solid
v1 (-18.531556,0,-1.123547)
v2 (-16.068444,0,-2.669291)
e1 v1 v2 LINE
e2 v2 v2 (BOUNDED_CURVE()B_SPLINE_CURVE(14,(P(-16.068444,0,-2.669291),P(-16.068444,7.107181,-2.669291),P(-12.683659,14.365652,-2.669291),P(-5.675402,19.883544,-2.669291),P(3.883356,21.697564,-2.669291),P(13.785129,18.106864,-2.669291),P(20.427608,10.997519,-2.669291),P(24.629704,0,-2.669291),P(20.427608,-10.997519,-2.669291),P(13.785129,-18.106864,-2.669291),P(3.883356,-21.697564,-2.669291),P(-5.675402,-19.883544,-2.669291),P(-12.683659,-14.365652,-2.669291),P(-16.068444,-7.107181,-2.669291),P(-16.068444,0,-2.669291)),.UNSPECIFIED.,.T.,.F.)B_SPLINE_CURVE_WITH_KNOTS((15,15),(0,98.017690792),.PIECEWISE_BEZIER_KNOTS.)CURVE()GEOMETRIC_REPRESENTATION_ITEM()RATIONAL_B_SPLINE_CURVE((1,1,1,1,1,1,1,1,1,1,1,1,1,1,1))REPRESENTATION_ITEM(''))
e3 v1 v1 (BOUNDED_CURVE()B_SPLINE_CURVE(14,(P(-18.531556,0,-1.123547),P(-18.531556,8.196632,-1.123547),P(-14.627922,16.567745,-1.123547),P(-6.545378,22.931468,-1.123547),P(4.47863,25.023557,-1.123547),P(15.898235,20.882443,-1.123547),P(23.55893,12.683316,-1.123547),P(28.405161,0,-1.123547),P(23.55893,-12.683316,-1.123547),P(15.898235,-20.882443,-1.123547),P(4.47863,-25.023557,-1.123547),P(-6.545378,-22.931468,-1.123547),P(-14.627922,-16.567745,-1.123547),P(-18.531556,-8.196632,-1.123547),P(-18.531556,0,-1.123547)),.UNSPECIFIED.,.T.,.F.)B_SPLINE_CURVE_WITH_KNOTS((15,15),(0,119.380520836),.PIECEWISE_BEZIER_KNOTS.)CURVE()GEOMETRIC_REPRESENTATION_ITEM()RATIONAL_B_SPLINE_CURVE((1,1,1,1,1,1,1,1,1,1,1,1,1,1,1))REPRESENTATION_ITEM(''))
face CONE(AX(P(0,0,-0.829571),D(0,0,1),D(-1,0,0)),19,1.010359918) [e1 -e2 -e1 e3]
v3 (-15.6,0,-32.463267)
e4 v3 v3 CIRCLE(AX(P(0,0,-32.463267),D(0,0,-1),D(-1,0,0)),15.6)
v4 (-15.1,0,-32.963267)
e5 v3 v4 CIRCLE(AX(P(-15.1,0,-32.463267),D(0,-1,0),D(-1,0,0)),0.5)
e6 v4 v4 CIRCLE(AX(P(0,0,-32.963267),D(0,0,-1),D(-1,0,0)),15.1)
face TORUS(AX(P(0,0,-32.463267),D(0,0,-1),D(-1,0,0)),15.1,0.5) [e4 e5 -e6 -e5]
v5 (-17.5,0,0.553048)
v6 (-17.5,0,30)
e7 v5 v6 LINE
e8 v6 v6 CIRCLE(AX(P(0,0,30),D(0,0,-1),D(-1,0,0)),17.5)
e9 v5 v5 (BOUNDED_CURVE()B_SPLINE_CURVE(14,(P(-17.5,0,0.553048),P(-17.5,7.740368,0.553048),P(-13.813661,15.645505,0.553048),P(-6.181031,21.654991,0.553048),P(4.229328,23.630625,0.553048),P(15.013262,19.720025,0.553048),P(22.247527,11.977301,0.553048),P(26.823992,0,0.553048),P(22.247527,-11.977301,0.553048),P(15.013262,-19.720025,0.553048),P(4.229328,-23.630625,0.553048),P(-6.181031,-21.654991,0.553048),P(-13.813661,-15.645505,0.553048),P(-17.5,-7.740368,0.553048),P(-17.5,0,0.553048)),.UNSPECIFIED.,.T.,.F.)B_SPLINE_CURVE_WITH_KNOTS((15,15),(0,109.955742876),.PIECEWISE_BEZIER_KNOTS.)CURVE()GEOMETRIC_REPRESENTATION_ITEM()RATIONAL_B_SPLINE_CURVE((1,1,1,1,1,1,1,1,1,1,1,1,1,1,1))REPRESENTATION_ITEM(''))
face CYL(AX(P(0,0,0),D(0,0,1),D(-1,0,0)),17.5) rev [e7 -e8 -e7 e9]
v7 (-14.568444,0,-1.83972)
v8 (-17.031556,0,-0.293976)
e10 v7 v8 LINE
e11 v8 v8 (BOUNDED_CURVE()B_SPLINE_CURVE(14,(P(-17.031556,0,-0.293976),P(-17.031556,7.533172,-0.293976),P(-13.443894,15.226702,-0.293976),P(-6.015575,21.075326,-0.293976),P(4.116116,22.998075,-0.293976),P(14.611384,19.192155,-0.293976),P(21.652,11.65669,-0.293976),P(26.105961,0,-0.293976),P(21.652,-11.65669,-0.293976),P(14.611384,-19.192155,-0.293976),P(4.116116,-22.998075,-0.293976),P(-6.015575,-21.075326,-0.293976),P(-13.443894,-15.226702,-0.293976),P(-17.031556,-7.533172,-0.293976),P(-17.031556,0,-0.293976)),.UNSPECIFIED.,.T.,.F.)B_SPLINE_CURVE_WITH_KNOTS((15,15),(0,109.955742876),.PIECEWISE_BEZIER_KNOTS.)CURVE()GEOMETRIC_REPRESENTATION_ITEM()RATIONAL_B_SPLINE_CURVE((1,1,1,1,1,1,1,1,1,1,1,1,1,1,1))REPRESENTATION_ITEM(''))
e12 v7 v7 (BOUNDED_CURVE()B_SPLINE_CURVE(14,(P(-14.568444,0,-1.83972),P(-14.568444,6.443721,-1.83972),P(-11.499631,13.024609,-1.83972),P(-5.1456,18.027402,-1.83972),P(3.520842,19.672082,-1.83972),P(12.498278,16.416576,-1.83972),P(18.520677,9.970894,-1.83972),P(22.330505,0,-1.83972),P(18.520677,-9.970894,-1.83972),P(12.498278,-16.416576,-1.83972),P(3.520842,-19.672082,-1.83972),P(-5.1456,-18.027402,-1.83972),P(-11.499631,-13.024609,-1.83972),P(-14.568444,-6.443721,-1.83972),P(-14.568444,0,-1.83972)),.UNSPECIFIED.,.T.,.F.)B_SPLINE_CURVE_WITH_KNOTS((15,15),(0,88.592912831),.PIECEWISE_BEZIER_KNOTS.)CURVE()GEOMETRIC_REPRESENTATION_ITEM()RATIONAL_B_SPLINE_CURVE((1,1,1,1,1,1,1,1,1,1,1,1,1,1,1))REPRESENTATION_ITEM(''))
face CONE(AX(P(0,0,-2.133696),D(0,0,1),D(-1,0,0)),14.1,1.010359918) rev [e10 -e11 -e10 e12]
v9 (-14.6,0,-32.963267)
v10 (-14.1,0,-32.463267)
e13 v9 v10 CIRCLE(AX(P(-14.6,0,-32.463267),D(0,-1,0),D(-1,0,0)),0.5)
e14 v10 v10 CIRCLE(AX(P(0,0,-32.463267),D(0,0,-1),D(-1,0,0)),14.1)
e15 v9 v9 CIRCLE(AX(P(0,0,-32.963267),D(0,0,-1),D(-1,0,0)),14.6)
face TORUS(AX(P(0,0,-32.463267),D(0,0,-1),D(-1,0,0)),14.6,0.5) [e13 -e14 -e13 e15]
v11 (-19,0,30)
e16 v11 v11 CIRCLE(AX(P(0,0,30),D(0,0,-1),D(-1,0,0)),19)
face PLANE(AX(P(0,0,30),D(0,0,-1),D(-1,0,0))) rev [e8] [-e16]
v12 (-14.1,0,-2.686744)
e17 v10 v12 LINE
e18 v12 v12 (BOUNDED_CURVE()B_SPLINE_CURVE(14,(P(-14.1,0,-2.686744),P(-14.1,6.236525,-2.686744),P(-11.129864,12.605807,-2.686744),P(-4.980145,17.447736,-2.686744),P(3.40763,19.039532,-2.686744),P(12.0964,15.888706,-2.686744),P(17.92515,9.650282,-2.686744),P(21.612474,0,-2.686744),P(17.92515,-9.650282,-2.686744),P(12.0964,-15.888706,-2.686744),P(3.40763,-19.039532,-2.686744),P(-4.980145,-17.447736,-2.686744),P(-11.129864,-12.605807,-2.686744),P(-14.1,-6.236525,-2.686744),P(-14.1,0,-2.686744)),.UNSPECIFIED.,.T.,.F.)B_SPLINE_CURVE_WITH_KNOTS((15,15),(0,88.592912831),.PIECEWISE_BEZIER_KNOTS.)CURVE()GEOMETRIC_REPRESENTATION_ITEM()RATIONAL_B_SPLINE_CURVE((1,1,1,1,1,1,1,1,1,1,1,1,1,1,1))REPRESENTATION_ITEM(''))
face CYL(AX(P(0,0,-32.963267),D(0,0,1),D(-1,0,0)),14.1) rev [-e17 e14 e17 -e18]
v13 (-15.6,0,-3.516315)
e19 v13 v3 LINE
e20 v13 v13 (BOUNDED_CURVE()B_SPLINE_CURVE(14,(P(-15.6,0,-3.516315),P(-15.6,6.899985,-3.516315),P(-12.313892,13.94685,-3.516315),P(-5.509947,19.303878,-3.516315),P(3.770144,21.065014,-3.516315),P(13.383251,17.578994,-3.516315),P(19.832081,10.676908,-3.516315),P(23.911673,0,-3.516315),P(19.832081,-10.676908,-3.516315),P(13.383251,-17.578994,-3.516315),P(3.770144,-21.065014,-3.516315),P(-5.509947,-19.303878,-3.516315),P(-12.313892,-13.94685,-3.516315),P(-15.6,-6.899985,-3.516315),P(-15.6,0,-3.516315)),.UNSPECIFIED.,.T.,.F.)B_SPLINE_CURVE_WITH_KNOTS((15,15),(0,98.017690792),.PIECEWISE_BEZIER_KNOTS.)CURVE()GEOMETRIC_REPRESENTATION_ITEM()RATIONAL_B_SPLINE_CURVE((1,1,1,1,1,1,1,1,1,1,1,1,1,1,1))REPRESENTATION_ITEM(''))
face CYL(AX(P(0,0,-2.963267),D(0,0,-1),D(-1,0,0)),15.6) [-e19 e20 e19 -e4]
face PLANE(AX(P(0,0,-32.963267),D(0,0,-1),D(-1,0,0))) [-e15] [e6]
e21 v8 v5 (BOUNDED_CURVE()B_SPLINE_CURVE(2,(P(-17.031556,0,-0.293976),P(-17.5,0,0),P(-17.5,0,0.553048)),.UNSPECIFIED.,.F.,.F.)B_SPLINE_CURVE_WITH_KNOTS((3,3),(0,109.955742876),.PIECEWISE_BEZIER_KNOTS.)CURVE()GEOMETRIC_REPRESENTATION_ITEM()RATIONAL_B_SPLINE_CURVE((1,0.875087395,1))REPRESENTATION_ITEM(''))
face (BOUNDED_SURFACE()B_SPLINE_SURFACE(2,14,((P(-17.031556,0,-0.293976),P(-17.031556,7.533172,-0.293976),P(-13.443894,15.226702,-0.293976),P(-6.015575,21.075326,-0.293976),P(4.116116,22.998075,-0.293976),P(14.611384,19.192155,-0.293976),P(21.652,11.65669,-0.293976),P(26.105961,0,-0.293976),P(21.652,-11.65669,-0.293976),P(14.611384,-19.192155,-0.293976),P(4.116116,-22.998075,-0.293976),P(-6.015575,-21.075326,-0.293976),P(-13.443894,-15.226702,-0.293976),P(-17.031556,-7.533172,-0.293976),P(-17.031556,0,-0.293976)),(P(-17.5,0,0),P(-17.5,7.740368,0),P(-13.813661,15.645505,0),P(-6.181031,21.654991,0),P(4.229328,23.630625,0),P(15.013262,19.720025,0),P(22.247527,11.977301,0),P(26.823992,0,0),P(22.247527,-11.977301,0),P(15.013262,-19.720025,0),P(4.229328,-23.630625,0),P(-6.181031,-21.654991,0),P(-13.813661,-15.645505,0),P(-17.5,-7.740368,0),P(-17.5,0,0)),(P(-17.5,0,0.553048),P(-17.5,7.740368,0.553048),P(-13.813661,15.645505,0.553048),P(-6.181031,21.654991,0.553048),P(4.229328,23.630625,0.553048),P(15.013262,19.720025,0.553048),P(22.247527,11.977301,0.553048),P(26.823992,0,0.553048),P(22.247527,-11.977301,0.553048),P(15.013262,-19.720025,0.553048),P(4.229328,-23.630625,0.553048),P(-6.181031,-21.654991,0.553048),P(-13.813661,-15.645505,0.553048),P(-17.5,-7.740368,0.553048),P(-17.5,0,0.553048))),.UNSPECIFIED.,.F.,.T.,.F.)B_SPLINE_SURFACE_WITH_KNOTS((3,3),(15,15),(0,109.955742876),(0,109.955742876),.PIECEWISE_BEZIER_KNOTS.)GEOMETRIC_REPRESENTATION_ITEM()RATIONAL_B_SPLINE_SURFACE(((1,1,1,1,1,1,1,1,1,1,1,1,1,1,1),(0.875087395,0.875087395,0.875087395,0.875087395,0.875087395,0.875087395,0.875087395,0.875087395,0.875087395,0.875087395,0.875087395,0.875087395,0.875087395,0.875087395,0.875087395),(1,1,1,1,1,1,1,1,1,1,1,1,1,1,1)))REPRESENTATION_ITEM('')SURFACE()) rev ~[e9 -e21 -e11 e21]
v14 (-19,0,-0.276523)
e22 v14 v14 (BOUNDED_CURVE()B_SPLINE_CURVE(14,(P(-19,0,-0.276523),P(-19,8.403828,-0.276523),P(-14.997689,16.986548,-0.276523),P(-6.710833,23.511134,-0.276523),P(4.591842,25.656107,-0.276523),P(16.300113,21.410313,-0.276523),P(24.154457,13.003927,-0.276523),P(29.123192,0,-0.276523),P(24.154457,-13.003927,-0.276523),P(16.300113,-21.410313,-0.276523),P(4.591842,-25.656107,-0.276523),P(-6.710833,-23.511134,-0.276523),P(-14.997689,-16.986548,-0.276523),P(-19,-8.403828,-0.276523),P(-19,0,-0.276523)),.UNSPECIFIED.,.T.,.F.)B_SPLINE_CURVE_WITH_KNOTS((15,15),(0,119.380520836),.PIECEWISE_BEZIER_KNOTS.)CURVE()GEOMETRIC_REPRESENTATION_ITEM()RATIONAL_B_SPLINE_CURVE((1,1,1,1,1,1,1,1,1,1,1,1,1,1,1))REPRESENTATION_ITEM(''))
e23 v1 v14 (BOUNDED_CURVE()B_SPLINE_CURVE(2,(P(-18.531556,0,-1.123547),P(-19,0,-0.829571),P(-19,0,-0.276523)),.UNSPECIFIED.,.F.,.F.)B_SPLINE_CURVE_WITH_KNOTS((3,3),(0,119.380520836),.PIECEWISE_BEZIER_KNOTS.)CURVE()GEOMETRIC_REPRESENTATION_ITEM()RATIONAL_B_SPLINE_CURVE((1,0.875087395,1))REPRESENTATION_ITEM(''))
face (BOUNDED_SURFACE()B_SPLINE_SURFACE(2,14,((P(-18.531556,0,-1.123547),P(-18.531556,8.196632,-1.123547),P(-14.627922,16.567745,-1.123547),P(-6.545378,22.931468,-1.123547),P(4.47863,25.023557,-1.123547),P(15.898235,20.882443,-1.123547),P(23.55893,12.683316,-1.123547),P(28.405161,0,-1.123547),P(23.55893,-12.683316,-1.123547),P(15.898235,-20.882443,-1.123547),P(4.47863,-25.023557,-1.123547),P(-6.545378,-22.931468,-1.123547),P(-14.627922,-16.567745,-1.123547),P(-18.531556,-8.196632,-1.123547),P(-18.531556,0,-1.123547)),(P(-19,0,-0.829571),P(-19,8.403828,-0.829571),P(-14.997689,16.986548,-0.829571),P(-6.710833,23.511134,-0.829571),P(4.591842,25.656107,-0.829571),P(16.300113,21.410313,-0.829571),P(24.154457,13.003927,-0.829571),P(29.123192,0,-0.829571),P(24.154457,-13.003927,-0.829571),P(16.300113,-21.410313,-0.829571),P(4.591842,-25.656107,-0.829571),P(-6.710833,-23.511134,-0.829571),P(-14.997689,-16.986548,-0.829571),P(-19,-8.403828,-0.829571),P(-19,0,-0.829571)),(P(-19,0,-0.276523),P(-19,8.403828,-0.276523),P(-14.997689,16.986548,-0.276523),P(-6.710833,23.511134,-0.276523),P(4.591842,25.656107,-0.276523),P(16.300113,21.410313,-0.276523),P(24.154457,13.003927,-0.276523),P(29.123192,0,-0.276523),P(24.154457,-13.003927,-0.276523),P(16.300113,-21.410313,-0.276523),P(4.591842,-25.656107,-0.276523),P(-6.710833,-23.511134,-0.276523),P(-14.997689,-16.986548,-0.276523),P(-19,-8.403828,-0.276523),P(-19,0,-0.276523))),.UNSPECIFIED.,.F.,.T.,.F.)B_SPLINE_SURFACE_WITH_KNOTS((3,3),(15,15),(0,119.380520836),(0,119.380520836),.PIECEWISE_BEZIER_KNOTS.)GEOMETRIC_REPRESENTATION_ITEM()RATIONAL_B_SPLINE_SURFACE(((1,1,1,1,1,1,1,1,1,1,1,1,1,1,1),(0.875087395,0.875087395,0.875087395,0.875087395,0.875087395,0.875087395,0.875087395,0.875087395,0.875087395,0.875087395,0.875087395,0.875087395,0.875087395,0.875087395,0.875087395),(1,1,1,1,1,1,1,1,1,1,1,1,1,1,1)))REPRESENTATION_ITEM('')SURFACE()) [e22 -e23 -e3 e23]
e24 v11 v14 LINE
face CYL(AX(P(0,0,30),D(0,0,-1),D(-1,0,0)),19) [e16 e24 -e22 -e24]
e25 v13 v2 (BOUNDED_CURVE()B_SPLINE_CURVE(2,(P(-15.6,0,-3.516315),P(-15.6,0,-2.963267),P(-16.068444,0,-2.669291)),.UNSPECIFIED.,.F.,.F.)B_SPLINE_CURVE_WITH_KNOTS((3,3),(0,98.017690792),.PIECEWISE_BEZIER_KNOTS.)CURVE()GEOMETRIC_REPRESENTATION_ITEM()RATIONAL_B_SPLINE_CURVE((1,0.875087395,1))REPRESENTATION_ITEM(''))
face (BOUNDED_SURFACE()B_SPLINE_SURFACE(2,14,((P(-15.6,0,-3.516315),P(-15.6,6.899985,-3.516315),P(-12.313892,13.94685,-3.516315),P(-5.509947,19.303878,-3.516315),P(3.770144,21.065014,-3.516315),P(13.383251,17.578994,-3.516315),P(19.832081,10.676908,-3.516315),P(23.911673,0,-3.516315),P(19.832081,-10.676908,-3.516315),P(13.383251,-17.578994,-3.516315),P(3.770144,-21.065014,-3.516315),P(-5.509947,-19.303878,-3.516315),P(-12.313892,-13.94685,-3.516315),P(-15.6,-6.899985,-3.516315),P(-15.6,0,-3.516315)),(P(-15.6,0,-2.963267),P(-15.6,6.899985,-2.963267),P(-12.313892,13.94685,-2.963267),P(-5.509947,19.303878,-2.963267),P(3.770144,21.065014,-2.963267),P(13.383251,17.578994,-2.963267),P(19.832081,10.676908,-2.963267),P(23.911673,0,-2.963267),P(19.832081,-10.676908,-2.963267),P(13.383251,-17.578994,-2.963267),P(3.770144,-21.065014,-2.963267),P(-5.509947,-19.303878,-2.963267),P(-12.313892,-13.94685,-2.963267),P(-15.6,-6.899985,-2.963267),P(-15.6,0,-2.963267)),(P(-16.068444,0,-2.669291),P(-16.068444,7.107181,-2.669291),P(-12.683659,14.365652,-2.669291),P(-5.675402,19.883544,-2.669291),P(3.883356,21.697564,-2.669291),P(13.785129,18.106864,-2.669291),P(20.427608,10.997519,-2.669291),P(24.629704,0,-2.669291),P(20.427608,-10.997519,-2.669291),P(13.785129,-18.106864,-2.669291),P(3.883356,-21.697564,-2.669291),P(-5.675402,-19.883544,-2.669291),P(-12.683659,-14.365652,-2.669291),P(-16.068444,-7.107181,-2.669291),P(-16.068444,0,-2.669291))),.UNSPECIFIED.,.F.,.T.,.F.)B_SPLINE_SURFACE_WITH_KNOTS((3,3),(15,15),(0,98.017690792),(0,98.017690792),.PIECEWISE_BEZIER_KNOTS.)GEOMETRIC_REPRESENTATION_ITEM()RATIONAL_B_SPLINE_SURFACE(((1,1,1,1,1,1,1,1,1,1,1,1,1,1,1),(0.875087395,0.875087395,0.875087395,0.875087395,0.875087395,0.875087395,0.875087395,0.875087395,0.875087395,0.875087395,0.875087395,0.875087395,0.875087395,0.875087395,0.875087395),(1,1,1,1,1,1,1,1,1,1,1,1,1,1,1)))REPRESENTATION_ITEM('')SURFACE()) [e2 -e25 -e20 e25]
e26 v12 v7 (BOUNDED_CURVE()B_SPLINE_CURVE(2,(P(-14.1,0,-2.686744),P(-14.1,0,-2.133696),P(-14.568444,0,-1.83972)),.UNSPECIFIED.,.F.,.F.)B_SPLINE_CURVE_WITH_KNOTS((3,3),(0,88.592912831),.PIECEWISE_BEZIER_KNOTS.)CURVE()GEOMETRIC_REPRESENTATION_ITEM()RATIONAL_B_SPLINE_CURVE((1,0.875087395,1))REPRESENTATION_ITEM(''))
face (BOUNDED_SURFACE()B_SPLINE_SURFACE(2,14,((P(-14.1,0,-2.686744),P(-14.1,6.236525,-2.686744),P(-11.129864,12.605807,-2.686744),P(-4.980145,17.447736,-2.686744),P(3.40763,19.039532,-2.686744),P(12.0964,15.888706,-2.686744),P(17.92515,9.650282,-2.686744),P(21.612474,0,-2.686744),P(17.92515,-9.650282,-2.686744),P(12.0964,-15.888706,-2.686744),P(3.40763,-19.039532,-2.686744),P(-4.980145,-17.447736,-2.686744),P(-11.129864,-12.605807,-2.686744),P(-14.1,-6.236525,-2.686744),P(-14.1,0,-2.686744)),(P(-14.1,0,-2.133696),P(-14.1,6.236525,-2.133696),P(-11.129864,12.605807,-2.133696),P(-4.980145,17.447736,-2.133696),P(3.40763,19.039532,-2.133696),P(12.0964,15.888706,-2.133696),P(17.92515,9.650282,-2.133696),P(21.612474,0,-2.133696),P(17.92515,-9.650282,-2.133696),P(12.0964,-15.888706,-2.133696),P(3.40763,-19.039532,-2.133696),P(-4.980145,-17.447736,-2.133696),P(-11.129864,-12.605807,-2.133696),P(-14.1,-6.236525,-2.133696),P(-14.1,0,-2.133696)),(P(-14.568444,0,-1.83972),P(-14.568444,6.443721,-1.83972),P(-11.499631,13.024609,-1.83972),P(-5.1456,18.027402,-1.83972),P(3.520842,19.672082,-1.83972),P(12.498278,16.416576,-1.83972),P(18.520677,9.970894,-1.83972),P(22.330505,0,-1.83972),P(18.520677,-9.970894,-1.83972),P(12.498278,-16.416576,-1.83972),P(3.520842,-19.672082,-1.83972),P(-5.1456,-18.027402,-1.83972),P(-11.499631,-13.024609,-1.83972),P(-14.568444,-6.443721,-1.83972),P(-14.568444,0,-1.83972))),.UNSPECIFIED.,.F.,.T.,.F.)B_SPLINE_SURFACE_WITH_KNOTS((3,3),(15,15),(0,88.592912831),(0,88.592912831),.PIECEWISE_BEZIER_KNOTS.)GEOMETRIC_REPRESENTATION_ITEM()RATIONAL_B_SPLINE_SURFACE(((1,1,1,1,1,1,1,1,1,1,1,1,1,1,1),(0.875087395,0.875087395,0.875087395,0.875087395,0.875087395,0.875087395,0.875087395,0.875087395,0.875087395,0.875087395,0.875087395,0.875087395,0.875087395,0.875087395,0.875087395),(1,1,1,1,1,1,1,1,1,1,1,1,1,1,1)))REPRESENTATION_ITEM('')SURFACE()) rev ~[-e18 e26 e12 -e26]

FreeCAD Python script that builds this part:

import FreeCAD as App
import Part
import Sketcher
Q = App.Units.Quantity


def edges_at(feature, points):
    """Names of the edges that pass closest to the given points."""
    edges = feature.Shape.Edges
    near = lambda p: min(range(len(edges)), key=lambda i: edges[i].distToShape(Part.Vertex(*p))[0])
    return sorted({f"Edge{near(p) + 1}" for p in points})

doc = App.newDocument("Part")
body = doc.addObject("PartDesign::Body", "Body")

# Sketch on XZ plane
sketch1 = body.newObject("Sketcher::SketchObject", "Sketch")
sketch1.AttachmentSupport = (doc.getObject("XZ_Plane"), [""])
sketch1.MapMode = "FlatFace"
sketch1.addGeometry([
    Part.LineSegment(App.Vector(-17.5, 0, 0), App.Vector(-17.5, 30, 0)),  # 0
    Part.LineSegment(App.Vector(-17.5, 30, 0), App.Vector(-19, 30, 0)),  # 1
    Part.LineSegment(App.Vector(-19, 30, 0), App.Vector(-19, -0.8, 0)),  # 2
    Part.LineSegment(App.Vector(-19, -0.8, 0), App.Vector(-15.6, -3, 0)),  # 3
    Part.LineSegment(App.Vector(-15.6, -3, 0), App.Vector(-15.6, -33, 0)),  # 4
    Part.LineSegment(App.Vector(-15.6, -33, 0), App.Vector(-14.1, -33, 0)),  # 5
    Part.LineSegment(App.Vector(-14.1, -33, 0), App.Vector(-14.1, -2.1, 0)),  # 6
    Part.LineSegment(App.Vector(-14.1, -2.1, 0), App.Vector(-17.5, 0, 0)),  # 7
], False)
sketch1.addConstraint([
    Sketcher.Constraint("Coincident", 0, 2, 1, 1),
    Sketcher.Constraint("Coincident", 1, 2, 2, 1),
    Sketcher.Constraint("Coincident", 2, 2, 3, 1),
    Sketcher.Constraint("Coincident", 3, 2, 4, 1),
    Sketcher.Constraint("Coincident", 4, 2, 5, 1),
    Sketcher.Constraint("Coincident", 5, 2, 6, 1),
    Sketcher.Constraint("Coincident", 6, 2, 7, 1),
    Sketcher.Constraint("Coincident", 7, 2, 0, 1),
    Sketcher.Constraint("Vertical", 0),
    Sketcher.Constraint("Horizontal", 1),
    Sketcher.Constraint("Vertical", 2),
    Sketcher.Constraint("Vertical", 4),
    Sketcher.Constraint("Horizontal", 5),
    Sketcher.Constraint("Vertical", 6),
    Sketcher.Constraint("PointOnObject", 7, 2, -1),
    Sketcher.Constraint("Parallel", 3, 7),
    Sketcher.Constraint("Equal", 1, 5),
    Sketcher.Constraint("Equal", 0, 4),
    Sketcher.Constraint("DistanceY", 0, 1, 0, 2, Q("30 mm")),
    Sketcher.Constraint("DistanceX", 1, 2, 1, 1, Q("1.5 mm")),
    Sketcher.Constraint("DistanceX", 1, 2, -1, 1, Q("19 mm")),
    Sketcher.Constraint("DistanceX", 3, 2, -1, 1, Q("15.6 mm")),
    Sketcher.Constraint("DistanceY", 2, 2, 2, 1, Q("30.829571 mm")),
    Sketcher.Constraint("Distance", 3, Q("4.014058 mm")),
])
revolution = body.newObject("PartDesign::Revolution", "Revolution")
revolution.Profile = sketch1
revolution.ReferenceAxis = (sketch1, ["V_Axis"])
revolution.Angle = 360
doc.recompute()

fillet = body.newObject("PartDesign::Fillet", "Fillet")
fillet.Base = (revolution, edges_at(revolution, [(15.6, 0, -32.963), (14.1, 0, -32.963)]))
fillet.Radius = 0.5
doc.recompute()

fillet2 = body.newObject("PartDesign::Fillet", "Fillet001")
fillet2.Base = (fillet, edges_at(fillet, [(19, 0, -0.83), (15.6, 0, -2.963)]))
fillet2.Radius = 1
doc.recompute()

fillet3 = body.newObject("PartDesign::Fillet", "Fillet002")
fillet3.Base = (fillet2, edges_at(fillet2, [(14.1, 0, -2.134), (17.5, 0, 0)]))
fillet3.Radius = 1

doc.recompute()
